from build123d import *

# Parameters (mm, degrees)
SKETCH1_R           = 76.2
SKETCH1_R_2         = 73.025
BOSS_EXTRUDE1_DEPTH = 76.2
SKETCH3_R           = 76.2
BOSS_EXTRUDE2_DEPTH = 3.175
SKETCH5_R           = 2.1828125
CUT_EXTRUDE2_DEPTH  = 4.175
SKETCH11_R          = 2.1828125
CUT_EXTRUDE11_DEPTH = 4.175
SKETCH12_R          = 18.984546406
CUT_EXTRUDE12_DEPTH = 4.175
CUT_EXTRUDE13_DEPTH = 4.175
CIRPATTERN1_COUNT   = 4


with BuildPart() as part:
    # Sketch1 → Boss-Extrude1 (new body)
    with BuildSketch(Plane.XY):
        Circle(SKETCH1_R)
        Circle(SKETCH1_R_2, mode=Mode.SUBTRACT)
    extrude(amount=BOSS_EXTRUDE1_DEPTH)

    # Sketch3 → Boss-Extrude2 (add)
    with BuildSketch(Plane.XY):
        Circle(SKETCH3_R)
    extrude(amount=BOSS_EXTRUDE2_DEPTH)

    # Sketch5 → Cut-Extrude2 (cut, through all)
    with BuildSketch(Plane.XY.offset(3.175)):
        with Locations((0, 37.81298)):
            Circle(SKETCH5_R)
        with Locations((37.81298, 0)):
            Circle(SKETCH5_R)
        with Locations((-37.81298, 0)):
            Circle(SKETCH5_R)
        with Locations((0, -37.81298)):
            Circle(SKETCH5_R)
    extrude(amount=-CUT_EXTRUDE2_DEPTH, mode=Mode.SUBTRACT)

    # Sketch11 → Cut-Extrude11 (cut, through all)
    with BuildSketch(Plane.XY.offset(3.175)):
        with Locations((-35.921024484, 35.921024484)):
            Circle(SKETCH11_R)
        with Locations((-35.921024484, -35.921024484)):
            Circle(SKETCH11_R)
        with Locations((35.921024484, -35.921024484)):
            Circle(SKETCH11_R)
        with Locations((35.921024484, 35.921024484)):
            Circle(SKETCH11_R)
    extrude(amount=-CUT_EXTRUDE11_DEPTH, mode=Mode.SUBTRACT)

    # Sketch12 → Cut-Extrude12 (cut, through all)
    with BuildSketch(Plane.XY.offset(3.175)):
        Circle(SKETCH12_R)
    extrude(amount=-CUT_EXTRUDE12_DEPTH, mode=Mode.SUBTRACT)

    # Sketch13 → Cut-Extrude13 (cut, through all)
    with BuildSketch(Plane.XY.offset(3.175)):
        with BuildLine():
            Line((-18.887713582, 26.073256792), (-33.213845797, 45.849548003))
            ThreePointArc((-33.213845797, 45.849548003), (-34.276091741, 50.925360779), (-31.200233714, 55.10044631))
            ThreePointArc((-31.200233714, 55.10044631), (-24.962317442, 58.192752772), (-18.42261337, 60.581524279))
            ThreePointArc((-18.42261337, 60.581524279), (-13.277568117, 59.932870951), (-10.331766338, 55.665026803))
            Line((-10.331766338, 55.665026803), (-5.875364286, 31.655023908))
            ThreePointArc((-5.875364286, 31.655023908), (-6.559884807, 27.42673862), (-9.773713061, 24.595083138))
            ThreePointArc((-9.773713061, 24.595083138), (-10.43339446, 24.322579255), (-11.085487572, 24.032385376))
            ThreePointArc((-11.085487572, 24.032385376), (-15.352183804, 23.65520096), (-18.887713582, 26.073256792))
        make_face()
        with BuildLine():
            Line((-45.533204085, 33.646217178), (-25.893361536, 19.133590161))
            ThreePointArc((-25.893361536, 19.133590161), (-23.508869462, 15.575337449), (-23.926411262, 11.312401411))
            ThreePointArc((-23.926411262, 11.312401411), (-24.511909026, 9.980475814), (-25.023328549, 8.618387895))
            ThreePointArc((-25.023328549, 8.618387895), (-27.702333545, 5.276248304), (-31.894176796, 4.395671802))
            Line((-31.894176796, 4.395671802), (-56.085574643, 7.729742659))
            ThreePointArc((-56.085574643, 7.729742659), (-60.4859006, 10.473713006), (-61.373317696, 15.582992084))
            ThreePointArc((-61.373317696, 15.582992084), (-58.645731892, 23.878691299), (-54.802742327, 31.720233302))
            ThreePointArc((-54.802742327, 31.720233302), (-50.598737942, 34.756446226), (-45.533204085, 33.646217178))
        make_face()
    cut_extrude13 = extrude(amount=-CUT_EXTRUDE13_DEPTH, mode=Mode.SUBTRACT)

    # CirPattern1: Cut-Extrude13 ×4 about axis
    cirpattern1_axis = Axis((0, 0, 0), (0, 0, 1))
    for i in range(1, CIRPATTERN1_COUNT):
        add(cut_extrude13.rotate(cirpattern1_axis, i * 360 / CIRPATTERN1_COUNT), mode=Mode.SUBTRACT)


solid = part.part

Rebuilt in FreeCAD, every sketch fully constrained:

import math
import FreeCAD as App
import Part
import Sketcher
Q = App.Units.Quantity

doc = App.newDocument("Part")
body = doc.addObject("PartDesign::Body", "Body")

sketch1 = body.newObject("Sketcher::SketchObject", "Sketch")
sketch1.AttachmentSupport = (doc.getObject("XY_Plane"), [""])
sketch1.MapMode = "FlatFace"
sketch1.addGeometry(Part.Circle(App.Vector(0, 0, 0), App.Vector(0, 0, 1), 76), False)
sketch1.addGeometry(Part.Circle(App.Vector(0, 0, 0), App.Vector(0, 0, 1), 73), False)
sketch1.addConstraint(Sketcher.Constraint("Coincident", 0, 3, -1, 1))
sketch1.addConstraint(Sketcher.Constraint("Coincident", 1, 3, -1, 1))
sketch1.addConstraint(Sketcher.Constraint("Diameter", 0, Q("6 in")))
sketch1.addConstraint(Sketcher.Constraint("Diameter", 1, Q("5.75 in")))
pad1 = body.newObject("PartDesign::Pad", "Pad")
pad1.Profile = sketch1
pad1.Length = Q("3 in")

sketch2 = body.newObject("Sketcher::SketchObject", "Sketch001")
sketch2.AttachmentSupport = (doc.getObject("XY_Plane"), [""])
sketch2.MapMode = "FlatFace"
sketch2.addGeometry(Part.Circle(App.Vector(0, 0, 0), App.Vector(0, 0, 1), 76), False)
sketch2.addConstraint(Sketcher.Constraint("Coincident", 0, 3, -1, 1))
sketch2.addConstraint(Sketcher.Constraint("Diameter", 0, Q("6 in")))
pad2 = body.newObject("PartDesign::Pad", "Pad001")
pad2.Profile = sketch2
pad2.Length = Q("0.125 in")

sketch3 = body.newObject("Sketcher::SketchObject", "Sketch002")
sketch3.AttachmentSupport = (doc.getObject("XY_Plane"), [""])
sketch3.MapMode = "FlatFace"
sketch3.AttachmentOffset = App.Placement(App.Vector(0, 0, 0.125 * 25.4), App.Rotation())
sketch3.addGeometry(Part.Circle(App.Vector(0, 37.8, 0), App.Vector(0, 0, 1), 2.2), False)
sketch3.addGeometry(Part.Circle(App.Vector(37.8, 0, 0), App.Vector(0, 0, 1), 2.2), False)
sketch3.addGeometry(Part.Circle(App.Vector(-37.8, 0, 0), App.Vector(0, 0, 1), 2.2), False)
sketch3.addGeometry(Part.Circle(App.Vector(0, -37.8, 0), App.Vector(0, 0, 1), 2.2), False)
sketch3.addConstraint(Sketcher.Constraint("Equal", 0, 1))
sketch3.addConstraint(Sketcher.Constraint("Equal", 1, 2))
sketch3.addConstraint(Sketcher.Constraint("Equal", 2, 3))
sketch3.addConstraint(Sketcher.Constraint("Symmetric", 1, 3, 2, 3, -1, 1))
sketch3.addConstraint(Sketcher.Constraint("Symmetric", 0, 3, 3, 3, -1, 1))
sketch3.addConstraint(Sketcher.Constraint("PointOnObject", 0, 3, -2))
sketch3.addConstraint(Sketcher.Constraint("PointOnObject", 1, 3, -1))
sketch3.addConstraint(Sketcher.Constraint("Diameter", 0, Q("0.171875 in")))
sketch3.addConstraint(Sketcher.Constraint("DistanceY", -1, 1, 0, 3, Q("1.4887 in")))
sketch3.addConstraint(Sketcher.Constraint("DistanceX", -1, 1, 1, 3, Q("1.4887 in")))
pocket1 = body.newObject("PartDesign::Pocket", "Pocket")
pocket1.Profile = sketch3
pocket1.Type = "ThroughAll"

sketch4 = body.newObject("Sketcher::SketchObject", "Sketch003")
sketch4.AttachmentSupport = (doc.getObject("XY_Plane"), [""])
sketch4.MapMode = "FlatFace"
sketch4.AttachmentOffset = App.Placement(App.Vector(0, 0, 0.125 * 25.4), App.Rotation())
sketch4.addGeometry(Part.Circle(App.Vector(-35.9, 35.9, 0), App.Vector(0, 0, 1), 2.2), False)
sketch4.addGeometry(Part.Circle(App.Vector(-35.9, -35.9, 0), App.Vector(0, 0, 1), 2.2), False)
sketch4.addGeometry(Part.Circle(App.Vector(35.9, -35.9, 0), App.Vector(0, 0, 1), 2.2), False)
sketch4.addGeometry(Part.Circle(App.Vector(35.9, 35.9, 0), App.Vector(0, 0, 1), 2.2), False)
sketch4.addConstraint(Sketcher.Constraint("Equal", 0, 1))
sketch4.addConstraint(Sketcher.Constraint("Equal", 1, 2))
sketch4.addConstraint(Sketcher.Constraint("Equal", 2, 3))
sketch4.addConstraint(Sketcher.Constraint("Symmetric", 0, 3, 2, 3, -1, 1))
sketch4.addConstraint(Sketcher.Constraint("Symmetric", 1, 3, 3, 3, -1, 1))
sketch4.addConstraint(Sketcher.Constraint("Symmetric", 1, 3, 2, 3, -2))
sketch4.addConstraint(Sketcher.Constraint("Diameter", 0, Q("0.171875 in")))
sketch4.addConstraint(Sketcher.Constraint("DistanceY", 1, 3, 0, 3, Q("71.842049 mm")))
sketch4.addConstraint(Sketcher.Constraint("DistanceX", 1, 3, 2, 3, Q("71.842049 mm")))
pocket2 = body.newObject("PartDesign::Pocket", "Pocket001")
pocket2.Profile = sketch4
pocket2.Type = "ThroughAll"

sketch5 = body.newObject("Sketcher::SketchObject", "Sketch004")
sketch5.AttachmentSupport = (doc.getObject("XY_Plane"), [""])
sketch5.MapMode = "FlatFace"
sketch5.AttachmentOffset = App.Placement(App.Vector(0, 0, 0.125 * 25.4), App.Rotation())
sketch5.addGeometry(Part.Circle(App.Vector(0, 0, 0), App.Vector(0, 0, 1), 19), False)
sketch5.addConstraint(Sketcher.Constraint("Coincident", 0, 3, -1, 1))
sketch5.addConstraint(Sketcher.Constraint("Diameter", 0, Q("37.969093 mm")))
pocket3 = body.newObject("PartDesign::Pocket", "Pocket002")
pocket3.Profile = sketch5
pocket3.Type = "ThroughAll"

sketch6 = body.newObject("Sketcher::SketchObject", "Sketch005")
sketch6.AttachmentSupport = (doc.getObject("XY_Plane"), [""])
sketch6.MapMode = "FlatFace"
sketch6.AttachmentOffset = App.Placement(App.Vector(0, 0, 0.125 * 25.4), App.Rotation())
sketch6.addGeometry(Part.LineSegment(App.Vector(-33.213846, 45.849548, 0), App.Vector(-18.887714, 26.073257, 0)), False)
sketch6.addGeometry(Part.ArcOfCircle(Part.Circle(App.Vector(-13.745244, 29.79851, 0), App.Vector(0, 0, 1), 6.35), math.radians(-144.080073), math.radians(-65.237405)), False)
sketch6.addGeometry(Part.ArcOfCircle(Part.Circle(App.Vector(0, 0, 0), App.Vector(0, 0, 1), 26.465894), math.radians(111.672122), math.radians(114.762595)), False)
sketch6.addGeometry(Part.ArcOfCircle(Part.Circle(App.Vector(-12.118734, 30.496217, 0), App.Vector(0, 0, 1), 6.35), math.radians(-68.327877), math.radians(10.51479)), False)
sketch6.addGeometry(Part.LineSegment(App.Vector(-5.875364, 31.655024, 0), App.Vector(-10.331766, 55.665027, 0)), False)
sketch6.addGeometry(Part.ArcOfCircle(Part.Circle(App.Vector(-16.575136, 54.50622, 0), App.Vector(0, 0, 1), 6.35), math.radians(10.51479), math.radians(106.914319)), False)
sketch6.addGeometry(Part.ArcOfCircle(Part.Circle(App.Vector(0, 0, 0), App.Vector(0, 0, 1), 63.320722), math.radians(106.914319), math.radians(119.520398)), False)
sketch6.addGeometry(Part.ArcOfCircle(Part.Circle(App.Vector(-28.071377, 49.574801, 0), App.Vector(0, 0, 1), 6.35), math.radians(119.520398), math.radians(215.919927)), False)
sketch6.addGeometry(Part.LineSegment(App.Vector(-25.893362, 19.13359, 0), App.Vector(-45.533204, 33.646217, 0)), False)
sketch6.addGeometry(Part.ArcOfCircle(Part.Circle(App.Vector(-49.306952, 28.539229, 0), App.Vector(0, 0, 1), 6.35), math.radians(53.537895), math.radians(149.937424)), False)
sketch6.addGeometry(Part.ArcOfCircle(Part.Circle(App.Vector(0, 0, 0), App.Vector(0, 0, 1), 63.320721), math.radians(149.937424), math.radians(165.753372)), False)
sketch6.addGeometry(Part.ArcOfCircle(Part.Circle(App.Vector(-55.218609, 14.020281, 0), App.Vector(0, 0, 1), 6.35), math.radians(165.753372), math.radians(262.152901)), False)
sketch6.addGeometry(Part.LineSegment(App.Vector(-56.085575, 7.729743, 0), App.Vector(-31.894177, 4.395672, 0)), False)
sketch6.addGeometry(Part.ArcOfCircle(Part.Circle(App.Vector(-31.027212, 10.68621, 0), App.Vector(0, 0, 1), 6.35), math.radians(-97.847099), math.radians(-19.004431)), False)
sketch6.addGeometry(Part.ArcOfCircle(Part.Circle(App.Vector(0, 0, 0), App.Vector(0, 0, 1), 26.465895), math.radians(154.695227), math.radians(160.995569)), False)
sketch6.addGeometry(Part.ArcOfCircle(Part.Circle(App.Vector(-29.667109, 14.026602, 0), App.Vector(0, 0, 1), 6.35), math.radians(-25.304773), math.radians(53.537895)), False)
sketch6.addConstraint(Sketcher.Constraint("Coincident", 0, 2, 1, 1))
sketch6.addConstraint(Sketcher.Constraint("Coincident", 1, 2, 2, 2))
sketch6.addConstraint(Sketcher.Constraint("Coincident", 2, 1, 3, 1))
sketch6.addConstraint(Sketcher.Constraint("Coincident", 3, 2, 4, 1))
sketch6.addConstraint(Sketcher.Constraint("Coincident", 4, 2, 5, 1))
sketch6.addConstraint(Sketcher.Constraint("Coincident", 5, 2, 6, 1))
sketch6.addConstraint(Sketcher.Constraint("Coincident", 6, 2, 7, 1))
sketch6.addConstraint(Sketcher.Constraint("Coincident", 7, 2, 0, 1))
sketch6.addConstraint(Sketcher.Constraint("Coincident", 8, 2, 9, 1))
sketch6.addConstraint(Sketcher.Constraint("Coincident", 9, 2, 10, 1))
sketch6.addConstraint(Sketcher.Constraint("Coincident", 10, 2, 11, 1))
sketch6.addConstraint(Sketcher.Constraint("Coincident", 11, 2, 12, 1))
sketch6.addConstraint(Sketcher.Constraint("Coincident", 12, 2, 13, 1))
sketch6.addConstraint(Sketcher.Constraint("Coincident", 13, 2, 14, 2))
sketch6.addConstraint(Sketcher.Constraint("Coincident", 14, 1, 15, 1))
sketch6.addConstraint(Sketcher.Constraint("Coincident", 15, 2, 8, 1))
sketch6.addConstraint(Sketcher.Constraint("Coincident", 2, 3, -1, 1))
sketch6.addConstraint(Sketcher.Constraint("Coincident", 6, 3, -1, 1))
sketch6.addConstraint(Sketcher.Constraint("Coincident", 10, 3, -1, 1))
sketch6.addConstraint(Sketcher.Constraint("Coincident", 14, 3, -1, 1))
sketch6.addConstraint(Sketcher.Constraint("Radius", 1, Q("0.25 in")))
sketch6.addConstraint(Sketcher.Constraint("Radius", 3, Q("0.25 in")))
sketch6.addConstraint(Sketcher.Constraint("Radius", 5, Q("0.25 in")))
sketch6.addConstraint(Sketcher.Constraint("Radius", 7, Q("0.25 in")))
sketch6.addConstraint(Sketcher.Constraint("Radius", 9, Q("0.25 in")))
sketch6.addConstraint(Sketcher.Constraint("Radius", 11, Q("0.25 in")))
sketch6.addConstraint(Sketcher.Constraint("Radius", 13, Q("0.25 in")))
sketch6.addConstraint(Sketcher.Constraint("Radius", 15, Q("0.25 in")))
sketch6.addConstraint(Sketcher.Constraint("Radius", 6, Q("63.320722 mm")))
sketch6.addConstraint(Sketcher.Constraint("Radius", 10, Q("63.320721 mm")))
sketch6.addConstraint(Sketcher.Constraint("Radius", 2, Q("26.465894 mm")))
sketch6.addConstraint(Sketcher.Constraint("Radius", 14, Q("26.465895 mm")))
sketch6.addConstraint(Sketcher.Constraint("DistanceY", -1, 1, 7, 3, Q("49.574801 mm")))
sketch6.addConstraint(Sketcher.Constraint("DistanceY", -1, 1, 14, 1, Q("11.312401 mm")))
sketch6.addConstraint(Sketcher.Constraint("DistanceY", 13, 3, 1, 3, Q("19.1123 mm")))
sketch6.addConstraint(Sketcher.Constraint("DistanceX", 11, 3, 15, 3, Q("25.5515 mm")))
sketch6.addConstraint(Sketcher.Constraint("DistanceX", 13, 3, 0, 2, Q("12.139498 mm")))
sketch6.addConstraint(Sketcher.Constraint("DistanceX", 0, 2, 2, 1, Q("9.114001 mm")))
sketch6.addConstraint(Sketcher.Constraint("DistanceY", 7, 2, 6, 2, Q("9.250898 mm")))
sketch6.addConstraint(Sketcher.Constraint("DistanceX", 15, 3, 14, 1, Q("5.740698 mm")))
sketch6.addConstraint(Sketcher.Constraint("DistanceX", 13, 3, 14, 1, Q("7.1008 mm")))
sketch6.addConstraint(Sketcher.Constraint("Distance", 0, Q("24.420069 mm")))
sketch6.addConstraint(Sketcher.Constraint("Distance", 4, Q("24.420069 mm")))
sketch6.addConstraint(Sketcher.Constraint("Distance", 8, Q("24.420069 mm")))
sketch6.addConstraint(Sketcher.Constraint("Distance", 12, Q("24.420069 mm")))
sketch6.addConstraint(Sketcher.Constraint("DistanceY", -1, 1, 5, 3, Q("54.50622 mm")))
sketch6.addConstraint(Sketcher.Constraint("DistanceX", 9, 3, -1, 1, Q("49.306952 mm")))
sketch6.addConstraint(Sketcher.Constraint("DistanceY", -1, 1, 12, 2, Q("4.395672 mm")))
sketch6.addConstraint(Sketcher.Constraint("DistanceX", 13, 2, -1, 1, Q("25.023329 mm")))
sketch6.addConstraint(Sketcher.Constraint("DistanceX", 15, 2, -1, 1, Q("25.893362 mm")))
sketch6.addConstraint(Sketcher.Constraint("DistanceX", 1, 3, 3, 3, Q("1.62651 mm")))
sketch6.addConstraint(Sketcher.Constraint("DistanceY", 1, 2, 3, 3, Q("6.463831 mm")))
sketch6.addConstraint(Sketcher.Constraint("DistanceX", 3, 3, 3, 2, Q("6.24337 mm")))
sketch6.addConstraint(Sketcher.Constraint("DistanceX", 5, 2, 3, 3, Q("6.303879 mm")))
sketch6.addConstraint(Sketcher.Constraint("DistanceX", 9, 2, 9, 3, Q("5.49579 mm")))
sketch6.addConstraint(Sketcher.Constraint("DistanceX", 10, 2, 11, 3, Q("6.154708 mm")))
pocket4 = body.newObject("PartDesign::Pocket", "Pocket003")
pocket4.Profile = sketch6
pocket4.Type = "ThroughAll"
doc.recompute()

polarpattern = body.newObject("PartDesign::PolarPattern", "PolarPattern")
polarpattern.Originals = [pocket4]
polarpattern.Axis = (doc.getObject("Z_Axis"), [""])
polarpattern.Angle = 360
polarpattern.Occurrences = 4
body.Tip = polarpattern

doc.recompute()
